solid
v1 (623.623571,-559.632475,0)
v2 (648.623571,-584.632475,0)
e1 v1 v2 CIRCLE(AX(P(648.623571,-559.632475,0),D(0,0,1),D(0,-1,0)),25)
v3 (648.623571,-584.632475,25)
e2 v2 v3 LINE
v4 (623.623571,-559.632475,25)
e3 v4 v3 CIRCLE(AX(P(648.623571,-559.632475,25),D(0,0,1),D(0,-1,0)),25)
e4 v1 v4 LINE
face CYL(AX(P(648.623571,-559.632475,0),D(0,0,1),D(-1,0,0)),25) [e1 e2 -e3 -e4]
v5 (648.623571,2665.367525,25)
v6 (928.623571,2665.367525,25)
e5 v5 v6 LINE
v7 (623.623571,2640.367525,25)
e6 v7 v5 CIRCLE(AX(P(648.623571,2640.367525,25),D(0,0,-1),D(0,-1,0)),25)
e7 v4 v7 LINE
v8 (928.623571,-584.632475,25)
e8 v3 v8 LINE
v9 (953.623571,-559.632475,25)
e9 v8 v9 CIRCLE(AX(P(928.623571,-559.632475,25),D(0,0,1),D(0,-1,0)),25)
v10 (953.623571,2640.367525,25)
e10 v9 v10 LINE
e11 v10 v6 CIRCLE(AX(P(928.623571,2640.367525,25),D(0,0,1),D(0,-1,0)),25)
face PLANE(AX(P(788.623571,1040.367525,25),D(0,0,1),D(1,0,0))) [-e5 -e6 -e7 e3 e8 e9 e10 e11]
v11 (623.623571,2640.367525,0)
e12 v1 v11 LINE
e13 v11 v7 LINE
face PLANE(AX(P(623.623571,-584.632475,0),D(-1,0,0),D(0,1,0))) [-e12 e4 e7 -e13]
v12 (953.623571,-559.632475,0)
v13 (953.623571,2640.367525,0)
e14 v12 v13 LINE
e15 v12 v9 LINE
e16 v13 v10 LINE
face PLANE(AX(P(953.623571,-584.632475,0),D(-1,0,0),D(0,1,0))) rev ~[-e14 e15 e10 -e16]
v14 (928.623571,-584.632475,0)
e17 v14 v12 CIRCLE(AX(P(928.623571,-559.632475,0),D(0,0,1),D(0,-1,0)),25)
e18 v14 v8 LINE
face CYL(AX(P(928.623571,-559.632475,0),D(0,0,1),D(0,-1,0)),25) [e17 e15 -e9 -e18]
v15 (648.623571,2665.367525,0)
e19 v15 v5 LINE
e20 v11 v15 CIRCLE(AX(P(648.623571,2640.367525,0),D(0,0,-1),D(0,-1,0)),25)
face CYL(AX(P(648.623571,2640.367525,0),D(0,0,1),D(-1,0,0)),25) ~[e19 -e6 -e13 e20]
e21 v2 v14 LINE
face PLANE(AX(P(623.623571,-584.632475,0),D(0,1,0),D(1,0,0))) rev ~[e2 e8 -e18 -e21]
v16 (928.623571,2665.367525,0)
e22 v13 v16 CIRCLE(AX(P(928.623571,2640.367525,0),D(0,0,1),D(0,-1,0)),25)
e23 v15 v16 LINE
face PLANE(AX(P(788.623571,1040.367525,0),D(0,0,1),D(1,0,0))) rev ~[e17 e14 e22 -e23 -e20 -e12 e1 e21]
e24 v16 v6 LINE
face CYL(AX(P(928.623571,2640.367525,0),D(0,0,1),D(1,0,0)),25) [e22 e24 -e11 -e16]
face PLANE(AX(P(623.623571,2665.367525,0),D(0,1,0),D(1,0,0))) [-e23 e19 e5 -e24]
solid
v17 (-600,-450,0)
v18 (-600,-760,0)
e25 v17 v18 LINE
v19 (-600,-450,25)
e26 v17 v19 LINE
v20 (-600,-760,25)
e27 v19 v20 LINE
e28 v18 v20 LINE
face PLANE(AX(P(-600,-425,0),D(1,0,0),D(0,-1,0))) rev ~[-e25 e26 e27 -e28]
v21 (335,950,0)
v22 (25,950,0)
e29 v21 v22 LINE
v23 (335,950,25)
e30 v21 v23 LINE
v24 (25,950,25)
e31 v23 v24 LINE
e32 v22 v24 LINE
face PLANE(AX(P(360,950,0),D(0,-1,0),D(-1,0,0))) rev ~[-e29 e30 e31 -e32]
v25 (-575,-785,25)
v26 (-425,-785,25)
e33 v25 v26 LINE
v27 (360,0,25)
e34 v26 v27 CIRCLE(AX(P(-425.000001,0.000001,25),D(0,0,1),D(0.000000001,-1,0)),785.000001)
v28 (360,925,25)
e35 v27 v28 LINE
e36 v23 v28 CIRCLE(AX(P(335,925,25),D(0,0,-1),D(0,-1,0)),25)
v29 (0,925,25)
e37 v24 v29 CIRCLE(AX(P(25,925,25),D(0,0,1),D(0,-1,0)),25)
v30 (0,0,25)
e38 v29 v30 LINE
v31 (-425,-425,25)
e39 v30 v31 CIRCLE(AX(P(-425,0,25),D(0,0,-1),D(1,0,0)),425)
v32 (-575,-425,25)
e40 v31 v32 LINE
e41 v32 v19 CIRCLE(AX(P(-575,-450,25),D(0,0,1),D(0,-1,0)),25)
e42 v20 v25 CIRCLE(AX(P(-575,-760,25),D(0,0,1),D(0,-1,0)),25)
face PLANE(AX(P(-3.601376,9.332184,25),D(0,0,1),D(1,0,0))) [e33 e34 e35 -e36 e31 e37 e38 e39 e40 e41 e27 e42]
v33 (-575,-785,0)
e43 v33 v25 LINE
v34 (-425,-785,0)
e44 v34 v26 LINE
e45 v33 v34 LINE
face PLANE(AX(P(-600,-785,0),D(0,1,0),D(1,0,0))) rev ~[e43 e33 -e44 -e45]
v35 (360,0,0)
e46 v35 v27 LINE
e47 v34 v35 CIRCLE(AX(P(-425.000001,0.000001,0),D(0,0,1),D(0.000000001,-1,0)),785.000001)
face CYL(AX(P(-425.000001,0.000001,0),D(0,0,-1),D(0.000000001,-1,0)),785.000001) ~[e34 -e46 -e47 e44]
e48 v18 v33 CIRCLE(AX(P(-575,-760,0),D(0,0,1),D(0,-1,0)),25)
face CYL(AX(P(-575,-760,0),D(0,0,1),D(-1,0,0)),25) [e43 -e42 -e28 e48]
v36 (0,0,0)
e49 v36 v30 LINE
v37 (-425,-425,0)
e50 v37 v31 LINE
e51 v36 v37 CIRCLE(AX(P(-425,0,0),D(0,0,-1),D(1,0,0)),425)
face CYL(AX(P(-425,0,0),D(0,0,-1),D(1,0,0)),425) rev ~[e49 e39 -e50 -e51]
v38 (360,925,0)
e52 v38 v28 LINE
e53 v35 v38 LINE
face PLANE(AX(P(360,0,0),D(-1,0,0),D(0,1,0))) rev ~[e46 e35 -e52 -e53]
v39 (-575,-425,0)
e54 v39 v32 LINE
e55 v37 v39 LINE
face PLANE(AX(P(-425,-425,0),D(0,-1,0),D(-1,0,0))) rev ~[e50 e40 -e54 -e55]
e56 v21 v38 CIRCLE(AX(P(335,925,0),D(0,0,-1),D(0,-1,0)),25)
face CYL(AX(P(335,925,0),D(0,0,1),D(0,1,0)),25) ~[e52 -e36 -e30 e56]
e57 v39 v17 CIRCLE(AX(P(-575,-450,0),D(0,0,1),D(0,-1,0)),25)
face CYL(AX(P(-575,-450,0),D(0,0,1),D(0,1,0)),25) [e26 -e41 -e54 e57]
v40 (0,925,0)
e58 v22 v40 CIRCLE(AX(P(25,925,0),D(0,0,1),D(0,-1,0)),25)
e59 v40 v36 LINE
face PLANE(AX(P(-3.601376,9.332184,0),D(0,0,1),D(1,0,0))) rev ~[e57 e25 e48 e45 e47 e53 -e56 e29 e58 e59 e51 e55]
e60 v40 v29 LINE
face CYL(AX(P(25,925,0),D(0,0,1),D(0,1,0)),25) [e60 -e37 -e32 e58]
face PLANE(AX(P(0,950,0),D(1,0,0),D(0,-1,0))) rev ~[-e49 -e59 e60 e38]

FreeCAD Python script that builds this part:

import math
import FreeCAD as App
import Part
import Sketcher


def edges_at(feature, points):
    """Names of the edges that pass closest to the given points."""
    edges = feature.Shape.Edges
    near = lambda p: min(range(len(edges)), key=lambda i: edges[i].distToShape(Part.Vertex(*p))[0])
    return sorted({f"Edge{near(p) + 1}" for p in points})


def add_polygon(sketch, points):
    """Adds a closed chain of lines whose ends are joined by coincident constraints."""
    first, n = sketch.GeometryCount, len(points)
    for a, b in zip(points, points[1:] + points[:1]):
        sketch.addGeometry(Part.LineSegment(App.Vector(*a, 0), App.Vector(*b, 0)), False)
    for i in range(n):
        sketch.addConstraint(Sketcher.Constraint("Coincident", first + i, 2, first + (i + 1) % n, 1))

doc = App.newDocument("Part")
body = doc.addObject("PartDesign::Body", "Body")

# Sketch on XY plane
sketch1 = body.newObject("Sketcher::SketchObject", "Sketch")
sketch1.AttachmentSupport = (doc.getObject("XY_Plane"), [""])
sketch1.MapMode = "FlatFace"
sketch1.addGeometry(Part.LineSegment(App.Vector(360, 950, 0), App.Vector(0, 950, 0)), False)
sketch1.addGeometry(Part.LineSegment(App.Vector(0, 950, 0), App.Vector(0, 0, 0)), False)
sketch1.addGeometry(Part.ArcOfCircle(Part.Circle(App.Vector(-425, 0, 0), App.Vector(0, 0, 1), 425), math.radians(-90), math.radians(0)), False)
sketch1.addGeometry(Part.LineSegment(App.Vector(-425, -425, 0), App.Vector(-600, -425, 0)), False)
sketch1.addGeometry(Part.LineSegment(App.Vector(-600, -425, 0), App.Vector(-600, -785, 0)), False)
sketch1.addGeometry(Part.LineSegment(App.Vector(-600, -785, 0), App.Vector(-425, -785, 0)), False)
sketch1.addGeometry(Part.ArcOfCircle(Part.Circle(App.Vector(-425.000001, 0.000001, 0), App.Vector(0, 0, 1), 785.000001), math.radians(-90), math.radians(0)), False)
sketch1.addGeometry(Part.LineSegment(App.Vector(360, 0, 0), App.Vector(360, 950, 0)), False)
sketch1.addConstraint(Sketcher.Constraint("Coincident", 0, 2, 1, 1))
sketch1.addConstraint(Sketcher.Constraint("Tangent", 1, 2, 2, 2))
sketch1.addConstraint(Sketcher.Constraint("Tangent", 2, 1, 3, 1))
sketch1.addConstraint(Sketcher.Constraint("Coincident", 3, 2, 4, 1))
sketch1.addConstraint(Sketcher.Constraint("Coincident", 4, 2, 5, 1))
sketch1.addConstraint(Sketcher.Constraint("Tangent", 5, 2, 6, 1))
sketch1.addConstraint(Sketcher.Constraint("Tangent", 6, 2, 7, 1))
sketch1.addConstraint(Sketcher.Constraint("Coincident", 7, 2, 0, 1))
sketch1.addConstraint(Sketcher.Constraint("Horizontal", 0))
sketch1.addConstraint(Sketcher.Constraint("Vertical", 1))
sketch1.addConstraint(Sketcher.Constraint("Horizontal", 3))
sketch1.addConstraint(Sketcher.Constraint("Vertical", 4))
sketch1.addConstraint(Sketcher.Constraint("Horizontal", 5))
sketch1.addConstraint(Sketcher.Constraint("Vertical", 7))
sketch1.addConstraint(Sketcher.Constraint("Coincident", 1, 2, -1, 1))
sketch1.addConstraint(Sketcher.Constraint("Coincident", 6, 3, 2, 3))
sketch1.addConstraint(Sketcher.Constraint("Radius", 2, 425.0))
sketch1.addConstraint(Sketcher.Constraint("Radius", 6, 785.000001))
sketch1.addConstraint(Sketcher.Constraint("DistanceX", 3, 2, 3, 1, 175.0))
sketch1.addConstraint(Sketcher.Constraint("DistanceY", 1, 2, 1, 1, 950.0))
pad1 = body.newObject("PartDesign::Pad", "Pad")
pad1.Profile = sketch1
pad1.Length = 25
doc.recompute()

fillet = body.newObject("PartDesign::Fillet", "Fillet")
fillet.Base = (pad1, edges_at(pad1, [
    (0, 950, 12.5),
    (360, 950, 12.5),
    (-600, -785, 12.5),
    (-600, -425, 12.5),
]))
fillet.Radius = 25
body2 = doc.addObject("PartDesign::Body", "Body001")

# Sketch on XY plane
sketch2 = body2.newObject("Sketcher::SketchObject", "Sketch001")
sketch2.AttachmentSupport = (doc.getObject("XY_Plane001"), [""])
sketch2.MapMode = "FlatFace"
add_polygon(sketch2, [(623.623571, 2665.367525), (623.623571, -584.632475), (953.623571, -584.632475), (953.623571, 2665.367525)])  # lines 0-3
sketch2.addConstraint(Sketcher.Constraint("Vertical", 0))
sketch2.addConstraint(Sketcher.Constraint("Horizontal", 1))
sketch2.addConstraint(Sketcher.Constraint("Vertical", 2))
sketch2.addConstraint(Sketcher.Constraint("Horizontal", 3))
sketch2.addConstraint(Sketcher.Constraint("DistanceX", 1, 1, 1, 2, 330.0))
sketch2.addConstraint(Sketcher.Constraint("DistanceY", 0, 2, 0, 1, 3250.0))
sketch2.addConstraint(Sketcher.Constraint("DistanceX", -1, 1, 0, 2, 623.623571))
sketch2.addConstraint(Sketcher.Constraint("DistanceY", 0, 2, -1, 1, 584.632475))
pad2 = body2.newObject("PartDesign::Pad", "Pad001")
pad2.Profile = sketch2
pad2.Length = 25
doc.recompute()

fillet2 = body2.newObject("PartDesign::Fillet", "Fillet001")
fillet2.Base = (pad2, edges_at(pad2, [
    (623.624, 2665.368, 12.5),
    (953.624, 2665.368, 12.5),
    (953.624, -584.632, 12.5),
    (623.624, -584.632, 12.5),
]))
fillet2.Radius = 25

doc.recompute()
